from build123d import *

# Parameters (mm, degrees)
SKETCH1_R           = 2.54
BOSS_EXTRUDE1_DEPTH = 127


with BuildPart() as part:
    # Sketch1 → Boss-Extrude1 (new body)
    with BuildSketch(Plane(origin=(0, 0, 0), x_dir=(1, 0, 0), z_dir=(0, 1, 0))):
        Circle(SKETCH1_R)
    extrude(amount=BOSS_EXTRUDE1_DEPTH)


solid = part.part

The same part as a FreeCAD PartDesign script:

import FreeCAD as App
import Part
import Sketcher

V = App.Vector
Q = App.Units.Quantity

doc = App.newDocument("Part")
body = doc.addObject("PartDesign::Body", "Body")

sketch1 = body.newObject("Sketcher::SketchObject", "Sketch")
sketch1.AttachmentSupport = (doc.getObject("XZ_Plane"), [""])
sketch1.MapMode = "FlatFace"
sketch1.addGeometry(Part.Circle(V(0, 0, 0), V(0, 0, 1), 2.54), False)
sketch1.addConstraint(Sketcher.Constraint("Coincident", 0, 3, -1, 1))
sketch1.addConstraint(Sketcher.Constraint("Diameter", 0, Q("0.2 in")))
pad1 = body.newObject("PartDesign::Pad", "Pad")
pad1.Profile = sketch1
pad1.Length = Q("5 in")
pad1.Reversed = True

doc.recompute()
